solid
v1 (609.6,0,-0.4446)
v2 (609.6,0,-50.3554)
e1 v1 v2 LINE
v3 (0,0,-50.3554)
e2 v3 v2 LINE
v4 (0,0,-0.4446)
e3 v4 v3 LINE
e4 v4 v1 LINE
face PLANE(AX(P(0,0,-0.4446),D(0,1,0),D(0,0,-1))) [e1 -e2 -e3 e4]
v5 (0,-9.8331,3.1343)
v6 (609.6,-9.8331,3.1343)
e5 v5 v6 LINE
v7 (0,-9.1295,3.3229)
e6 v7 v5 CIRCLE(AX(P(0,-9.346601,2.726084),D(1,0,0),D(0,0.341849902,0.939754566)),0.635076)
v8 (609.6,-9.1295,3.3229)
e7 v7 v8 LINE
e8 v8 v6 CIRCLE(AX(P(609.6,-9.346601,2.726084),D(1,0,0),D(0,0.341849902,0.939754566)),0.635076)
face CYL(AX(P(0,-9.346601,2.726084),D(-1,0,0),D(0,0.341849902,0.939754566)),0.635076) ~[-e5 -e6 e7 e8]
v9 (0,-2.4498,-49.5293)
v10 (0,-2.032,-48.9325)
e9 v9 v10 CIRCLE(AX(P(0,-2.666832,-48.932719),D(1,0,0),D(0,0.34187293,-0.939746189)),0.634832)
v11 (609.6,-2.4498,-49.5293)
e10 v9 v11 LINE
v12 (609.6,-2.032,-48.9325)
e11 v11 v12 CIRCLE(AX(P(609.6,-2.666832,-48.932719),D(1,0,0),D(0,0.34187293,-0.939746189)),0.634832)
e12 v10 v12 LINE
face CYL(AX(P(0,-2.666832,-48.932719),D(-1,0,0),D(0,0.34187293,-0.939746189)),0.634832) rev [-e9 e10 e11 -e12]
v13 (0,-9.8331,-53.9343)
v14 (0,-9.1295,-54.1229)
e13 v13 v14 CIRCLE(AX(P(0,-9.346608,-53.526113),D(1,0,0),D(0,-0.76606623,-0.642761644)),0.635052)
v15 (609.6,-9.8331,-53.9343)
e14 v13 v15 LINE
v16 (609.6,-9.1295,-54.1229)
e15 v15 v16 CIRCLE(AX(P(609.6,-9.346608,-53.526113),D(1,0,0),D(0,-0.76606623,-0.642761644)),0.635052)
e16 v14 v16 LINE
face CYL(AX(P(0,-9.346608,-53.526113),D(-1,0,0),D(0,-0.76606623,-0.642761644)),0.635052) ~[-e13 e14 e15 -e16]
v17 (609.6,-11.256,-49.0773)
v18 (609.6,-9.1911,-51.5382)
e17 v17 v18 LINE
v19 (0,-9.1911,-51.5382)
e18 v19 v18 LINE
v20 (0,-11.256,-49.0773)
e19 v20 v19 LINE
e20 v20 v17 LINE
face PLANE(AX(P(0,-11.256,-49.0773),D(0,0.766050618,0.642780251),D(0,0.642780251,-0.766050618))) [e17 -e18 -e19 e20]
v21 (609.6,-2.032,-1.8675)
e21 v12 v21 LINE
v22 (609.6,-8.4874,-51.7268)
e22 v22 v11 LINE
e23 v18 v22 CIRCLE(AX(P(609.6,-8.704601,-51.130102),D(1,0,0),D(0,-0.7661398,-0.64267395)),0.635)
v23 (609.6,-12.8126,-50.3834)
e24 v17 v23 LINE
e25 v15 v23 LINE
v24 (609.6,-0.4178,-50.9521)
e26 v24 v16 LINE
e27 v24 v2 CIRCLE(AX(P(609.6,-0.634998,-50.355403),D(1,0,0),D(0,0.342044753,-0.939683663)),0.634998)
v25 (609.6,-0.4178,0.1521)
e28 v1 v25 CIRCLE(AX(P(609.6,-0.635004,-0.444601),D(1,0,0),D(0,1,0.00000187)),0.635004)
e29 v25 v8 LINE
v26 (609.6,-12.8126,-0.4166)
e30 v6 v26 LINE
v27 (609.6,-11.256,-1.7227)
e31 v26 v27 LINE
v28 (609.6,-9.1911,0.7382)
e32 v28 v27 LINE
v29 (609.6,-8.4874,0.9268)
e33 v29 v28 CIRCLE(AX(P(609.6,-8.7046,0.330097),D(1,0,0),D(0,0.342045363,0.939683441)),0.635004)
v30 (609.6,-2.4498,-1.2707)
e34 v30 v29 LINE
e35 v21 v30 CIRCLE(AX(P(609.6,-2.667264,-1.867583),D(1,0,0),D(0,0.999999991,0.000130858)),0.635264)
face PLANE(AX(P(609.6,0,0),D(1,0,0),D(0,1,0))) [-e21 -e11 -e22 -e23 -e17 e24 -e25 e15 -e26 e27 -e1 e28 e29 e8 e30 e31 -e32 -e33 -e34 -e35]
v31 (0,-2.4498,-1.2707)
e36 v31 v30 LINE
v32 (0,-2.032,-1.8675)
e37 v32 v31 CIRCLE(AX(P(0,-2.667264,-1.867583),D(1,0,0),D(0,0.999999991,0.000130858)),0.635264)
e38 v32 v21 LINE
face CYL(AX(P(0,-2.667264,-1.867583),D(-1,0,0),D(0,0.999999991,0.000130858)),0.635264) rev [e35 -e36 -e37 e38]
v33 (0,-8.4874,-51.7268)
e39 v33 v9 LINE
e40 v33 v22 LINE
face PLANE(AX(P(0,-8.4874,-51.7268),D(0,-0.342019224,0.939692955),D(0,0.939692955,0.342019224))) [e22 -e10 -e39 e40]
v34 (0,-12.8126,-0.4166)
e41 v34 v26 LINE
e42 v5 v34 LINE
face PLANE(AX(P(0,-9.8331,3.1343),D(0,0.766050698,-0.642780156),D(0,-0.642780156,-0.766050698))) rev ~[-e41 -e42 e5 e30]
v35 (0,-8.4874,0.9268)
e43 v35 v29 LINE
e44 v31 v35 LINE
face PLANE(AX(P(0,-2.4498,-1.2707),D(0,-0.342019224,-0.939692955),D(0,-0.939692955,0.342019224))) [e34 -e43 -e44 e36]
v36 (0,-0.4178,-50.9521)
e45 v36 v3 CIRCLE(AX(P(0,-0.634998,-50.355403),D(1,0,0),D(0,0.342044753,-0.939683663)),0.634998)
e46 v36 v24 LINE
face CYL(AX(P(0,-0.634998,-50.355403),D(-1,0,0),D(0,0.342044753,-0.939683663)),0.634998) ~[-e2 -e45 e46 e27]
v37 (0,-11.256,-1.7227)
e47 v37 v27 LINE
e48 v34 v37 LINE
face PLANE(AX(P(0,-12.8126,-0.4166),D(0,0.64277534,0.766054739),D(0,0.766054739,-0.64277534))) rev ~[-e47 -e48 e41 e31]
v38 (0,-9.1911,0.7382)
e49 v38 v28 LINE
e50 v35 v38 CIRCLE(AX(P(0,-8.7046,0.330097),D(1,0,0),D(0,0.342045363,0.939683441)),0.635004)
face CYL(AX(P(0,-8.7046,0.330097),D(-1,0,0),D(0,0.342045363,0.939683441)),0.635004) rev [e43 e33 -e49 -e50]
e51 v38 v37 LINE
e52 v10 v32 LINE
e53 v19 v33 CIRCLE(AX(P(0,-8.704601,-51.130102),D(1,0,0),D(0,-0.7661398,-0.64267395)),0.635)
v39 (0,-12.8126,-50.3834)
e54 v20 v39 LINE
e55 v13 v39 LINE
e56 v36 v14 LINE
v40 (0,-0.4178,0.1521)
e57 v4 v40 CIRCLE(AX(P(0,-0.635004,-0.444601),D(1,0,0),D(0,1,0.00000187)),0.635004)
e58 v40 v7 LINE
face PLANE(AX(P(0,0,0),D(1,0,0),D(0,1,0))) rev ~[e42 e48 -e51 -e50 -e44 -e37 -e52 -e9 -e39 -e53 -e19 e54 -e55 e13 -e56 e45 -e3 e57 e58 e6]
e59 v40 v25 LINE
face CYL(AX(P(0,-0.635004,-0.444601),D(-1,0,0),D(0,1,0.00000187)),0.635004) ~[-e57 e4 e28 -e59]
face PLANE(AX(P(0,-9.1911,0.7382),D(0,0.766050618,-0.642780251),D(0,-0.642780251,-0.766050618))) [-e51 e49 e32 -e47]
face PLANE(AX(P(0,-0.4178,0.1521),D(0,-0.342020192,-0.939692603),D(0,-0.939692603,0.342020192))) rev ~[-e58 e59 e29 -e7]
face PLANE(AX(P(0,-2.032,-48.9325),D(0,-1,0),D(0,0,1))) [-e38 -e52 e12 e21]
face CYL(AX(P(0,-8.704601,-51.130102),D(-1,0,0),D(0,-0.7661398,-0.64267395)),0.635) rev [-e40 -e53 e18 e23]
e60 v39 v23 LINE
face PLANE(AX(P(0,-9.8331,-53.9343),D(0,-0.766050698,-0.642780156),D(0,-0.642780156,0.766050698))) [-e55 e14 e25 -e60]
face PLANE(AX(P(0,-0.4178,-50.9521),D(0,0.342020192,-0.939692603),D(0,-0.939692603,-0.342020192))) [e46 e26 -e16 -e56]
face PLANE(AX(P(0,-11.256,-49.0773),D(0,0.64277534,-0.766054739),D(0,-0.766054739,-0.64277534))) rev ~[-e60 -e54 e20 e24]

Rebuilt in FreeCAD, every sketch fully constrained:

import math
import FreeCAD as App
import Part
import Sketcher
from FreeCAD import Vector
Q = App.Units.Quantity

doc = App.newDocument("Part")
params = doc.addObject("Spreadsheet::Sheet", "Params")
for row, (alias, value) in enumerate([
    ("sketch1_radius", "0.025 in"),
    ("sketch1_radius2", "0.025 in"),
    ("sketch1_radius3", "0.025 in"),
    ("sketch1_radius4", "0.025 in"),
    ("sketch1_radius5", "0.025 in"),
    ("pad1_length", "24 in"),
], start=1):
    params.set(f"A{row}", alias)
    params.set(f"B{row}", "=" + value)
    params.setAlias(f"B{row}", alias)

body = doc.addObject("PartDesign::Body", "Body")

# Sketch on YZ plane
sketch1 = body.newObject("Sketcher::SketchObject", "Sketch")
sketch1.AttachmentSupport = (doc.getObject("YZ_Plane"), [""])
sketch1.MapMode = "FlatFace"
sketch1.addGeometry([
    Part.LineSegment(Vector(0, -50.3554, 0), Vector(0, -0.4446, 0)),  # 0
    Part.ArcOfCircle(Part.Circle(Vector(-0.635, -0.4446, 0), Vector(0, 0, 1), 0.635), math.radians(0), math.radians(69.998392)),  # 1
    Part.LineSegment(Vector(-0.4178, 0.1521, 0), Vector(-9.1295, 3.3229, 0)),  # 2
    Part.ArcOfCircle(Part.Circle(Vector(-9.3466, 2.7261, 0), Vector(0, 0, 1), 0.635061), math.radians(70.009956), math.radians(140.001518)),  # 3
    Part.LineSegment(Vector(-9.8331, 3.1343, 0), Vector(-12.8126, -0.4166, 0)),  # 4
    Part.LineSegment(Vector(-12.8126, -0.4166, 0), Vector(-11.256, -1.7227, 0)),  # 5
    Part.LineSegment(Vector(-11.256, -1.7227, 0), Vector(-9.1911, 0.7382, 0)),  # 6
    Part.ArcOfCircle(Part.Circle(Vector(-8.7046, 0.3301, 0), Vector(0, 0, 1), 0.635001), math.radians(69.998392), math.radians(140.008431)),  # 7
    Part.LineSegment(Vector(-8.4874, 0.9268, 0), Vector(-2.4498, -1.2707, 0)),  # 8
    Part.ArcOfCircle(Part.Circle(Vector(-2.667, -1.8675, 0), Vector(0, 0, 1), 0.635), math.radians(0), math.radians(70.001478)),  # 9
    Part.LineSegment(Vector(-2.032, -1.8675, 0), Vector(-2.032, -48.9325, 0)),  # 10
    Part.ArcOfCircle(Part.Circle(Vector(-2.667, -48.9325, 0), Vector(0, 0, 1), 0.635095), math.radians(-70.001478), math.radians(0)),  # 11
    Part.LineSegment(Vector(-2.4498, -49.5293, 0), Vector(-8.4874, -51.7268, 0)),  # 12
    Part.ArcOfCircle(Part.Circle(Vector(-8.7046, -51.1301, 0), Vector(0, 0, 1), 0.635002), math.radians(-140.008431), math.radians(-69.998392)),  # 13
    Part.LineSegment(Vector(-9.1911, -51.5382, 0), Vector(-11.256, -49.0773, 0)),  # 14
    Part.LineSegment(Vector(-11.256, -49.0773, 0), Vector(-12.8126, -50.3834, 0)),  # 15
    Part.LineSegment(Vector(-12.8126, -50.3834, 0), Vector(-9.8331, -53.9343, 0)),  # 16
    Part.ArcOfCircle(Part.Circle(Vector(-9.3466, -53.5261, 0), Vector(0, 0, 1), 0.635067), math.radians(-140.001518), math.radians(-70.009956)),  # 17
    Part.LineSegment(Vector(-9.1295, -54.1229, 0), Vector(-0.4178, -50.9521, 0)),  # 18
    Part.ArcOfCircle(Part.Circle(Vector(-0.635, -50.3554, 0), Vector(0, 0, 1), 0.635001), math.radians(-69.998392), math.radians(0)),  # 19
], False)
sketch1.addConstraint([
    Sketcher.Constraint("Coincident", 0, 2, 1, 1),
    Sketcher.Constraint("Coincident", 1, 2, 2, 1),
    Sketcher.Constraint("Coincident", 2, 2, 3, 1),
    Sketcher.Constraint("Coincident", 3, 2, 4, 1),
    Sketcher.Constraint("Coincident", 4, 2, 5, 1),
    Sketcher.Constraint("Coincident", 5, 2, 6, 1),
    Sketcher.Constraint("Coincident", 6, 2, 7, 2),
    Sketcher.Constraint("Coincident", 7, 1, 8, 1),
    Sketcher.Constraint("Coincident", 8, 2, 9, 2),
    Sketcher.Constraint("Coincident", 9, 1, 10, 1),
    Sketcher.Constraint("Coincident", 10, 2, 11, 2),
    Sketcher.Constraint("Coincident", 11, 1, 12, 1),
    Sketcher.Constraint("Coincident", 12, 2, 13, 2),
    Sketcher.Constraint("Coincident", 13, 1, 14, 1),
    Sketcher.Constraint("Coincident", 14, 2, 15, 1),
    Sketcher.Constraint("Coincident", 15, 2, 16, 1),
    Sketcher.Constraint("Coincident", 16, 2, 17, 1),
    Sketcher.Constraint("Coincident", 17, 2, 18, 1),
    Sketcher.Constraint("Coincident", 18, 2, 19, 1),
    Sketcher.Constraint("Coincident", 19, 2, 0, 1),
    Sketcher.Constraint("Vertical", 0),
    Sketcher.Constraint("Vertical", 10),
    Sketcher.Constraint("PointOnObject", 0, 2, -2),
    Sketcher.Constraint("Radius", 1, Q("0.025 in")),
    Sketcher.Constraint("Radius", 3, Q("0.025 in")),
    Sketcher.Constraint("Radius", 7, Q("0.025 in")),
    Sketcher.Constraint("Radius", 9, Q("0.025 in")),
    Sketcher.Constraint("Radius", 11, Q("0.025 in")),
    Sketcher.Constraint("Radius", 13, Q("0.025 in")),
    Sketcher.Constraint("Radius", 17, Q("0.025 in")),
    Sketcher.Constraint("Radius", 19, Q("0.025 in")),
    Sketcher.Constraint("Distance", 5, Q("0.08 in")),
    Sketcher.Constraint("Distance", 15, Q("0.08 in")),
    Sketcher.Constraint("DistanceX", 9, 1, -1, 1, Q("0.08 in")),
    Sketcher.Constraint("DistanceX", 8, 2, 1, 2, Q("0.08 in")),
    Sketcher.Constraint("DistanceX", 11, 1, 18, 2, Q("0.08 in")),
    Sketcher.Constraint("DistanceY", 0, 1, 0, 2, Q("1.965 in")),
    Sketcher.Constraint("DistanceY", 12, 2, 11, 3, Q("0.11 in")),
    Sketcher.Constraint("DistanceY", 12, 2, 10, 2, Q("0.11 in")),
    Sketcher.Constraint("Distance", 2, Q("0.365 in")),
    Sketcher.Constraint("Distance", 18, Q("0.365 in")),
    Sketcher.Constraint("DistanceY", -1, 1, 7, 3, Q("0.013 in")),
    Sketcher.Constraint("DistanceY", 13, 3, -1, 1, Q("2.013 in")),
    Sketcher.Constraint("DistanceY", -1, 1, 1, 2, Q("0.006 in")),
    Sketcher.Constraint("DistanceY", 18, 2, -1, 1, Q("2.006 in")),
    Sketcher.Constraint("DistanceY", 19, 3, 1, 3, Q("1.965 in")),
    Sketcher.Constraint("DistanceX", 4, 2, 2, 2, Q("0.145 in")),
    Sketcher.Constraint("DistanceX", 14, 2, 12, 2, Q("0.109 in")),
    Sketcher.Constraint("Distance", 4, Q("0.1825 in")),
    Sketcher.Constraint("Distance", 16, Q("0.1825 in")),
    Sketcher.Constraint("DistanceY", 10, 2, 10, 1, Q("47.065 mm")),
    Sketcher.Constraint("DistanceY", 1, 3, -1, 1, Q("0.0175 in")),
    Sketcher.Constraint("DistanceX", 7, 3, -1, 1, Q("0.3427 in")),
    Sketcher.Constraint("DistanceX", 13, 3, -1, 1, Q("0.3427 in")),
    Sketcher.Constraint("DistanceY", 0, 2, -1, 1, Q("0.0175 in")),
    Sketcher.Constraint("DistanceY", -1, 1, 3, 2, Q("0.1234 in")),
    Sketcher.Constraint("DistanceY", 4, 2, -1, 1, Q("0.0164 in")),
    Sketcher.Constraint("DistanceY", -1, 1, 7, 1, Q("0.0365 in")),
    Sketcher.Constraint("DistanceY", 12, 2, -1, 1, Q("2.0365 in")),
    Sketcher.Constraint("DistanceY", 15, 2, -1, 1, Q("1.9836 in")),
    Sketcher.Constraint("DistanceY", 16, 2, -1, 1, Q("2.1234 in")),
    Sketcher.Constraint("DistanceY", 11, 3, 3, 3, Q("2.0338 in")),
    Sketcher.Constraint("DistanceY", 17, 3, 9, 3, Q("2.0338 in")),
    Sketcher.Constraint("DistanceY", 9, 3, 1, 2, Q("0.0795 in")),
    Sketcher.Constraint("DistanceX", 5, 2, 6, 2, Q("0.0813 in")),
    Sketcher.Constraint("DistanceX", 6, 2, 7, 1, Q("0.0277 in")),
    Sketcher.Constraint("DistanceX", 13, 1, 12, 2, Q("0.0277 in")),
    Sketcher.Constraint("DistanceY", 12, 2, 14, 2, Q("0.1043 in")),
])
sketch1.setExpression("Constraints[23]", "Params.sketch1_radius")
sketch1.setExpression("Constraints[24]", "Params.sketch1_radius2")
sketch1.setExpression("Constraints[25]", "Params.sketch1_radius3")
sketch1.setExpression("Constraints[26]", "Params.sketch1_radius4")
sketch1.setExpression("Constraints[27]", "Params.sketch1_radius5")
pad1 = body.newObject("PartDesign::Pad", "Pad")
pad1.Profile = sketch1
pad1.setExpression("Length", "Params.pad1_length")

doc.recompute()
